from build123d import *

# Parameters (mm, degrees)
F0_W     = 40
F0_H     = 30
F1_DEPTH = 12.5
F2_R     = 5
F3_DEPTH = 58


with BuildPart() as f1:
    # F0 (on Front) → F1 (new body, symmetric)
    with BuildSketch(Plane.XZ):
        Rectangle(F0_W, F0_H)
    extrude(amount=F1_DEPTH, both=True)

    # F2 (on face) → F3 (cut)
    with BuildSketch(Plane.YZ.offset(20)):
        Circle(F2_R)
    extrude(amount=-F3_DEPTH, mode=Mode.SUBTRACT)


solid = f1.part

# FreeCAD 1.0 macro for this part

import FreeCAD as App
import Part
import Sketcher
from FreeCAD import Vector


def add_polygon(sketch, points):
    """Adds a closed chain of lines whose ends are joined by coincident constraints."""
    first, n = sketch.GeometryCount, len(points)
    for a, b in zip(points, points[1:] + points[:1]):
        sketch.addGeometry(Part.LineSegment(App.Vector(*a, 0), App.Vector(*b, 0)), False)
    for i in range(n):
        sketch.addConstraint(Sketcher.Constraint("Coincident", first + i, 2, first + (i + 1) % n, 1))

doc = App.newDocument("Part")
body = doc.addObject("PartDesign::Body", "Body")

sketch1 = doc.addObject("Sketcher::SketchObject", "Sketch")
body.addObject(sketch1)
sketch1.AttachmentSupport = (doc.XZ_Plane, [""])
sketch1.MapMode = "FlatFace"
add_polygon(sketch1, [(-20, 15), (-20, -15), (20, -15), (20, 15)])
sketch1.addConstraint([
    Sketcher.Constraint("Vertical", 0),
    Sketcher.Constraint("Horizontal", 1),
    Sketcher.Constraint("Vertical", 2),
    Sketcher.Constraint("Horizontal", 3),
    Sketcher.Constraint("Symmetric", 0, 2, 2, 2, -1, 1),
    Sketcher.Constraint("DistanceX", 1, 1, 1, 2, 40.0),
    Sketcher.Constraint("DistanceY", 0, 2, 0, 1, 30.0),
])
pad1 = doc.addObject("PartDesign::Pad", "Pad")
body.addObject(pad1)
pad1.Profile = sketch1
pad1.Length = 25
pad1.Midplane = True

sketch2 = doc.addObject("Sketcher::SketchObject", "Sketch001")
body.addObject(sketch2)
sketch2.AttachmentSupport = (doc.YZ_Plane, [""])
sketch2.MapMode = "FlatFace"
sketch2.AttachmentOffset = App.Placement(Vector(0, 0, 20), App.Rotation())
sketch2.addGeometry(Part.Circle(Vector(0, 0, 0), Vector(0, 0, 1), 5), False)
sketch2.addConstraint([
    Sketcher.Constraint("Coincident", 0, 3, -1, 1),
    Sketcher.Constraint("Diameter", 0, 10.0),
])
pocket1 = doc.addObject("PartDesign::Pocket", "Pocket")
body.addObject(pocket1)
pocket1.Profile = sketch2
pocket1.Length = 58

doc.recompute()
